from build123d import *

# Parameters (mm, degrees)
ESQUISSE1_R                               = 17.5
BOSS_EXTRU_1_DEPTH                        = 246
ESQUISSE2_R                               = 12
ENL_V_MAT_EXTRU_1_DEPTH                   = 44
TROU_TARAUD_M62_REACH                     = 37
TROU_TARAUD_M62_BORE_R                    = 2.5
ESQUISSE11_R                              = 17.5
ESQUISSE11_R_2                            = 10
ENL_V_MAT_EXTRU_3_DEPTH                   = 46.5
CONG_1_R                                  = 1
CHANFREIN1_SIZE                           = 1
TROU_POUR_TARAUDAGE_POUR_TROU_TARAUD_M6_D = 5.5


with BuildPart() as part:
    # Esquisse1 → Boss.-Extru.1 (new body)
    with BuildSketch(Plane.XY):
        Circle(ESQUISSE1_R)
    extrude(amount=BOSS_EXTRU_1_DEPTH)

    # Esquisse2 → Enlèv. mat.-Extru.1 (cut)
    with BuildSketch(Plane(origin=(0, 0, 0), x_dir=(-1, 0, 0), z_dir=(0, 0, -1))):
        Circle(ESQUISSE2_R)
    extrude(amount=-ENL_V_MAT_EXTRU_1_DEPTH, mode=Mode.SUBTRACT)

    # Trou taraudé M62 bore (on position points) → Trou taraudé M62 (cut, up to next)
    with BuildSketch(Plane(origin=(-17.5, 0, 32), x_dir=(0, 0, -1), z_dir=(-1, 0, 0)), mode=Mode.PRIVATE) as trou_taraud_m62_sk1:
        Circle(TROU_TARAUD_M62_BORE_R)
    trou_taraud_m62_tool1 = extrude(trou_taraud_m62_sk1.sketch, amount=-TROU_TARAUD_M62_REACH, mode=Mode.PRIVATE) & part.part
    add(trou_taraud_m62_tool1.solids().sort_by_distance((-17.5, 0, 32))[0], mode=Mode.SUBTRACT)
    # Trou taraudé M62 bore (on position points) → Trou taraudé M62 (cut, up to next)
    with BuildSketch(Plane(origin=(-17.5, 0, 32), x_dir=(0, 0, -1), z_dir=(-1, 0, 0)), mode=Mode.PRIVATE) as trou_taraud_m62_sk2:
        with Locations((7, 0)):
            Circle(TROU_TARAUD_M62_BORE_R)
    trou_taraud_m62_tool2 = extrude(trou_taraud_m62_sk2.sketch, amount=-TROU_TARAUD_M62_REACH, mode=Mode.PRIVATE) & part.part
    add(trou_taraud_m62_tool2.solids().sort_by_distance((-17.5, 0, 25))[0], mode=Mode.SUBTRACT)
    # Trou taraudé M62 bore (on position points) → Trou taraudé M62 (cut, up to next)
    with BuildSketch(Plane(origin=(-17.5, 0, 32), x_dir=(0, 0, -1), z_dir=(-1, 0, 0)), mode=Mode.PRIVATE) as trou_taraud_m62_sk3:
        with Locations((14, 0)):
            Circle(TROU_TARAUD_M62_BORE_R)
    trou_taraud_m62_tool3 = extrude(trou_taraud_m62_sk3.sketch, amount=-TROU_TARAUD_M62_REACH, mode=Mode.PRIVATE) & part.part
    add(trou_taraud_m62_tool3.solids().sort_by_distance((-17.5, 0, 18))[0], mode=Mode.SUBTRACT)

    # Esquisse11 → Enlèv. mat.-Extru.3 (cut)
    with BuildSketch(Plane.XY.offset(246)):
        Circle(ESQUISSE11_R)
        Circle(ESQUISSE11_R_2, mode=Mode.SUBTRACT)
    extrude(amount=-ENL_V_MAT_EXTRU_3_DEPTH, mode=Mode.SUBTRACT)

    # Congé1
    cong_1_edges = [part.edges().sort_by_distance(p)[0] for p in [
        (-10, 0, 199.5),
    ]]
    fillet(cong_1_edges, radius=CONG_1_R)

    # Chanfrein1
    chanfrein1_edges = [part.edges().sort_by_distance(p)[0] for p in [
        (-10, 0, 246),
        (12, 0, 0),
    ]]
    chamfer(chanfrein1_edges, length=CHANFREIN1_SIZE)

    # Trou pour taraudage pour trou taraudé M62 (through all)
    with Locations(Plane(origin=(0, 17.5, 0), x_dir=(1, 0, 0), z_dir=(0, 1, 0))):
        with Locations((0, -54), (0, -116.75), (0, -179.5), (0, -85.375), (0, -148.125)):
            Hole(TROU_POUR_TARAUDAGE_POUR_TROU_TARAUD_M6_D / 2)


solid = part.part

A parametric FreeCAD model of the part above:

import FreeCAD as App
import Part
import Sketcher

V = App.Vector


def edges_at(feature, points):
    """Names of the edges that pass closest to the given points."""
    edges = feature.Shape.Edges
    near = lambda p: min(range(len(edges)), key=lambda i: edges[i].distToShape(Part.Vertex(*p))[0])
    return sorted({f"Edge{near(p) + 1}" for p in points})

doc = App.newDocument("Part")
body = doc.addObject("PartDesign::Body", "Body")

# Sketch on XY plane
sketch1 = body.newObject("Sketcher::SketchObject", "Sketch")
sketch1.AttachmentSupport = (doc.getObject("XY_Plane"), [""])
sketch1.MapMode = "FlatFace"
sketch1.addGeometry(Part.Circle(V(0, 0, 0), V(0, 0, 1), 18), False)
sketch1.addConstraint(Sketcher.Constraint("Coincident", 0, 3, -1, 1))
sketch1.addConstraint(Sketcher.Constraint("Diameter", 0, 35.0))
pad1 = body.newObject("PartDesign::Pad", "Pad")
pad1.Profile = sketch1
pad1.Length = 246

# Sketch on XY plane
sketch2 = body.newObject("Sketcher::SketchObject", "Sketch001")
sketch2.AttachmentSupport = (doc.getObject("XY_Plane"), [""])
sketch2.MapMode = "FlatFace"
sketch2.addGeometry(Part.Circle(V(0, 0, 0), V(0, 0, 1), 12), False)
sketch2.addConstraint(Sketcher.Constraint("Coincident", 0, 3, -1, 1))
sketch2.addConstraint(Sketcher.Constraint("Diameter", 0, 24.0))
pocket1 = body.newObject("PartDesign::Pocket", "Pocket")
pocket1.Profile = sketch2
pocket1.Length = 44
pocket1.Reversed = True

# Sketch on YZ plane
sketch3 = body.newObject("Sketcher::SketchObject", "Sketch002")
sketch3.AttachmentSupport = (doc.getObject("YZ_Plane"), [""])
sketch3.MapMode = "FlatFace"
sketch3.AttachmentOffset = App.Placement(V(0, 0, -17.5), App.Rotation())
sketch3.addGeometry(Part.Circle(V(0, 32, 0), V(0, 0, 1), 2.5), False)
sketch3.addConstraint(Sketcher.Constraint("PointOnObject", 0, 3, -2))
sketch3.addConstraint(Sketcher.Constraint("Diameter", 0, 5.0))
sketch3.addConstraint(Sketcher.Constraint("DistanceY", -1, 1, 0, 3, 32.0))
pocket2 = body.newObject("PartDesign::Pocket", "Pocket001")
pocket2.Profile = sketch3
pocket2.Type = "UpToFirst"
pocket2.Reversed = True

# Sketch on YZ plane
sketch4 = body.newObject("Sketcher::SketchObject", "Sketch003")
sketch4.AttachmentSupport = (doc.getObject("YZ_Plane"), [""])
sketch4.MapMode = "FlatFace"
sketch4.AttachmentOffset = App.Placement(V(0, 0, -17.5), App.Rotation())
sketch4.addGeometry(Part.Circle(V(0, 25, 0), V(0, 0, 1), 2.5), False)
sketch4.addConstraint(Sketcher.Constraint("PointOnObject", 0, 3, -2))
sketch4.addConstraint(Sketcher.Constraint("Diameter", 0, 5.0))
sketch4.addConstraint(Sketcher.Constraint("DistanceY", -1, 1, 0, 3, 25.0))
pocket3 = body.newObject("PartDesign::Pocket", "Pocket002")
pocket3.Profile = sketch4
pocket3.Type = "UpToFirst"
pocket3.Reversed = True

# Sketch on YZ plane
sketch5 = body.newObject("Sketcher::SketchObject", "Sketch004")
sketch5.AttachmentSupport = (doc.getObject("YZ_Plane"), [""])
sketch5.MapMode = "FlatFace"
sketch5.AttachmentOffset = App.Placement(V(0, 0, -17.5), App.Rotation())
sketch5.addGeometry(Part.Circle(V(0, 18, 0), V(0, 0, 1), 2.5), False)
sketch5.addConstraint(Sketcher.Constraint("PointOnObject", 0, 3, -2))
sketch5.addConstraint(Sketcher.Constraint("Diameter", 0, 5.0))
sketch5.addConstraint(Sketcher.Constraint("DistanceY", -1, 1, 0, 3, 18.0))
pocket4 = body.newObject("PartDesign::Pocket", "Pocket003")
pocket4.Profile = sketch5
pocket4.Type = "UpToFirst"
pocket4.Reversed = True

# Sketch on XY plane
sketch6 = body.newObject("Sketcher::SketchObject", "Sketch005")
sketch6.AttachmentSupport = (doc.getObject("XY_Plane"), [""])
sketch6.MapMode = "FlatFace"
sketch6.AttachmentOffset = App.Placement(V(0, 0, 246), App.Rotation())
sketch6.addGeometry(Part.Circle(V(0, 0, 0), V(0, 0, 1), 18), False)
sketch6.addGeometry(Part.Circle(V(0, 0, 0), V(0, 0, 1), 10), False)
sketch6.addConstraint(Sketcher.Constraint("Coincident", 0, 3, -1, 1))
sketch6.addConstraint(Sketcher.Constraint("Coincident", 1, 3, -1, 1))
sketch6.addConstraint(Sketcher.Constraint("Diameter", 0, 35.0))
sketch6.addConstraint(Sketcher.Constraint("Diameter", 1, 20.0))
pocket5 = body.newObject("PartDesign::Pocket", "Pocket004")
pocket5.Profile = sketch6
pocket5.Length = 46.5
doc.recompute()

fillet = body.newObject("PartDesign::Fillet", "Fillet")
fillet.Base = (pocket5, edges_at(pocket5, [(-10, 0, 199.5)]))
fillet.Radius = 1
doc.recompute()

chamfer = body.newObject("PartDesign::Chamfer", "Chamfer")
chamfer.Base = (fillet, edges_at(fillet, [(-10, 0, 246), (12, 0, 0)]))
chamfer.Size = 1

# Sketch on XZ plane
sketch7 = body.newObject("Sketcher::SketchObject", "Sketch006")
sketch7.AttachmentSupport = (doc.getObject("XZ_Plane"), [""])
sketch7.MapMode = "FlatFace"
sketch7.AttachmentOffset = App.Placement(V(0, 0, -17.5), App.Rotation())
sketch7.addGeometry(Part.Circle(V(0, 54, 0), V(0, 0, 1), 2.8), False)
sketch7.addGeometry(Part.Circle(V(0, 116.8, 0), V(0, 0, 1), 2.8), False)
sketch7.addGeometry(Part.Circle(V(0, 179.5, 0), V(0, 0, 1), 2.8), False)
sketch7.addGeometry(Part.Circle(V(0, 85.4, 0), V(0, 0, 1), 2.8), False)
sketch7.addGeometry(Part.Circle(V(0, 148.1, 0), V(0, 0, 1), 2.8), False)
sketch7.addConstraint(Sketcher.Constraint("Equal", 0, 1))
sketch7.addConstraint(Sketcher.Constraint("Equal", 1, 2))
sketch7.addConstraint(Sketcher.Constraint("Equal", 2, 3))
sketch7.addConstraint(Sketcher.Constraint("Equal", 3, 4))
sketch7.addConstraint(Sketcher.Constraint("PointOnObject", 0, 3, -2))
sketch7.addConstraint(Sketcher.Constraint("PointOnObject", 1, 3, -2))
sketch7.addConstraint(Sketcher.Constraint("PointOnObject", 2, 3, -2))
sketch7.addConstraint(Sketcher.Constraint("PointOnObject", 3, 3, -2))
sketch7.addConstraint(Sketcher.Constraint("PointOnObject", 4, 3, -2))
sketch7.addConstraint(Sketcher.Constraint("Diameter", 0, 5.5))
sketch7.addConstraint(Sketcher.Constraint("DistanceY", -1, 1, 0, 3, 54.0))
sketch7.addConstraint(Sketcher.Constraint("DistanceY", -1, 1, 2, 3, 179.5))
sketch7.addConstraint(Sketcher.Constraint("DistanceY", -1, 1, 1, 3, 116.75))
sketch7.addConstraint(Sketcher.Constraint("DistanceY", 3, 3, 4, 3, 62.75))
sketch7.addConstraint(Sketcher.Constraint("DistanceY", -1, 1, 3, 3, 85.375))
doc.recompute()
hole = body.newObject("PartDesign::Hole", "Hole")
hole.Profile = sketch7
hole.ThreadType = "None"
hole.Diameter = 5.5
hole.DepthType = "ThroughAll"
hole.Reversed = True

doc.recompute()
